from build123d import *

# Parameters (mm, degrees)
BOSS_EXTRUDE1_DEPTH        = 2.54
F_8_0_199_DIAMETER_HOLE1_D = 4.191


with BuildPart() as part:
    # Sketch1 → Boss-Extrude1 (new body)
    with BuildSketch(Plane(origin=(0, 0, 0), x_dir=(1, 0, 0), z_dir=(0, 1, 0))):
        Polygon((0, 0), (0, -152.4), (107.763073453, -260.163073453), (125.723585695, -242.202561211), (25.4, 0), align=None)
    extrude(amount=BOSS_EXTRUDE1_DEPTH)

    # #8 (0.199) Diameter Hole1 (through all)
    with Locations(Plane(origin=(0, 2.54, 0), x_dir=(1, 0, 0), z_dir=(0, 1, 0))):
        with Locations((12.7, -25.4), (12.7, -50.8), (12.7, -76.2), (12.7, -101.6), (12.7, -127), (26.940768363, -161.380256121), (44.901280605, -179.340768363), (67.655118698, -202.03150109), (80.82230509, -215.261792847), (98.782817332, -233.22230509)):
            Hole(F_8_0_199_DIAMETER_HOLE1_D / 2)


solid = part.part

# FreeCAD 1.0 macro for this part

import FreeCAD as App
import Part
import Sketcher

V = App.Vector
Q = App.Units.Quantity


def add_polygon(sketch, points):
    """Adds a closed chain of lines whose ends are joined by coincident constraints."""
    first, n = sketch.GeometryCount, len(points)
    for a, b in zip(points, points[1:] + points[:1]):
        sketch.addGeometry(Part.LineSegment(App.Vector(*a, 0), App.Vector(*b, 0)), False)
    for i in range(n):
        sketch.addConstraint(Sketcher.Constraint("Coincident", first + i, 2, first + (i + 1) % n, 1))

doc = App.newDocument("Part")
params = doc.addObject("Spreadsheet::Sheet", "Params")
for row, (alias, value) in enumerate([
    ("sketch1_width", "1 in"),
    ("sketch1_height", "6 in"),
    ("sketch1_length", "6 in"),
    ("sketch1_length2", "1 in"),
    ("pad1_length", "0.1 in"),
    ("sketch2_diameter", "0.165 in"),
    ("hole_diameter", "0.165 in"),
], start=1):
    params.set(f"A{row}", alias)
    params.set(f"B{row}", "=" + value)
    params.setAlias(f"B{row}", alias)

body = doc.addObject("PartDesign::Body", "Body")

sketch1 = doc.addObject("Sketcher::SketchObject", "Sketch")
body.addObject(sketch1)
sketch1.AttachmentSupport = (doc.XZ_Plane, [""])
sketch1.MapMode = "FlatFace"
add_polygon(sketch1, [(0, 0), (0, 152), (108, 260), (126, 242), (25, 0)])
sketch1.addConstraint(Sketcher.Constraint("Vertical", 0))
sketch1.addConstraint(Sketcher.Constraint("Horizontal", 4))
sketch1.addConstraint(Sketcher.Constraint("Coincident", 4, 2, -1, 1))
sketch1.addConstraint(Sketcher.Constraint("Perpendicular", 1, 2))
sketch1.addConstraint(Sketcher.Constraint("DistanceX", 4, 2, 4, 1, Q("1 in")))
sketch1.addConstraint(Sketcher.Constraint("DistanceY", 0, 1, 0, 2, Q("6 in")))
sketch1.addConstraint(Sketcher.Constraint("Distance", 1, Q("6 in")))
sketch1.addConstraint(Sketcher.Constraint("Distance", 2, Q("1 in")))
sketch1.addConstraint(Sketcher.Constraint("Angle", 1, Q("45 deg")))
sketch1.setExpression("Constraints[9]", "Params.sketch1_width")
sketch1.setExpression("Constraints[10]", "Params.sketch1_height")
sketch1.setExpression("Constraints[11]", "Params.sketch1_length")
sketch1.setExpression("Constraints[12]", "Params.sketch1_length2")
pad1 = doc.addObject("PartDesign::Pad", "Pad")
body.addObject(pad1)
pad1.Profile = sketch1
pad1.setExpression("Length", "Params.pad1_length")
pad1.Reversed = True

sketch2 = doc.addObject("Sketcher::SketchObject", "Sketch001")
body.addObject(sketch2)
sketch2.AttachmentSupport = (doc.XZ_Plane, [""])
sketch2.MapMode = "FlatFace"
sketch2.AttachmentOffset = App.Placement(V(0, 0, -0.1 * 25.4), App.Rotation())
sketch2.addGeometry(Part.Circle(V(12.7, 25.4, 0), V(0, 0, 1), 2.1), False)
sketch2.addGeometry(Part.Circle(V(12.7, 50.8, 0), V(0, 0, 1), 2.1), False)
sketch2.addGeometry(Part.Circle(V(12.7, 76.2, 0), V(0, 0, 1), 2.1), False)
sketch2.addGeometry(Part.Circle(V(12.7, 101.6, 0), V(0, 0, 1), 2.1), False)
sketch2.addGeometry(Part.Circle(V(12.7, 127, 0), V(0, 0, 1), 2.1), False)
sketch2.addGeometry(Part.Circle(V(26.9, 161.4, 0), V(0, 0, 1), 2.1), False)
sketch2.addGeometry(Part.Circle(V(44.9, 179.3, 0), V(0, 0, 1), 2.1), False)
sketch2.addGeometry(Part.Circle(V(67.7, 202, 0), V(0, 0, 1), 2.1), False)
sketch2.addGeometry(Part.Circle(V(80.8, 215.3, 0), V(0, 0, 1), 2.1), False)
sketch2.addGeometry(Part.Circle(V(98.8, 233.2, 0), V(0, 0, 1), 2.1), False)
sketch2.addConstraint(Sketcher.Constraint("Equal", 0, 1))
sketch2.addConstraint(Sketcher.Constraint("Equal", 1, 2))
sketch2.addConstraint(Sketcher.Constraint("Equal", 2, 3))
sketch2.addConstraint(Sketcher.Constraint("Equal", 3, 4))
sketch2.addConstraint(Sketcher.Constraint("Equal", 4, 5))
sketch2.addConstraint(Sketcher.Constraint("Equal", 5, 6))
sketch2.addConstraint(Sketcher.Constraint("Equal", 6, 7))
sketch2.addConstraint(Sketcher.Constraint("Equal", 7, 8))
sketch2.addConstraint(Sketcher.Constraint("Equal", 8, 9))
sketch2.addConstraint(Sketcher.Constraint("Vertical", 0, 3, 1, 3))
sketch2.addConstraint(Sketcher.Constraint("Vertical", 1, 3, 2, 3))
sketch2.addConstraint(Sketcher.Constraint("Vertical", 2, 3, 3, 3))
sketch2.addConstraint(Sketcher.Constraint("Vertical", 3, 3, 4, 3))
sketch2.addConstraint(Sketcher.Constraint("Diameter", 0, Q("0.165 in")))
sketch2.addConstraint(Sketcher.Constraint("DistanceY", -1, 1, 0, 3, Q("1 in")))
sketch2.addConstraint(Sketcher.Constraint("DistanceY", -1, 1, 1, 3, Q("2 in")))
sketch2.addConstraint(Sketcher.Constraint("DistanceY", -1, 1, 2, 3, Q("3 in")))
sketch2.addConstraint(Sketcher.Constraint("DistanceY", -1, 1, 3, 3, Q("4 in")))
sketch2.addConstraint(Sketcher.Constraint("DistanceY", -1, 1, 4, 3, Q("5 in")))
sketch2.addConstraint(Sketcher.Constraint("DistanceX", -1, 1, 0, 3, Q("0.5 in")))
sketch2.addConstraint(Sketcher.Constraint("DistanceX", 7, 3, 9, 3, Q("1.2254999 in")))
sketch2.addConstraint(Sketcher.Constraint("DistanceY", -1, 1, 7, 3, 202.031501))
sketch2.addConstraint(Sketcher.Constraint("DistanceX", -1, 1, 5, 3, 26.940768))
sketch2.addConstraint(Sketcher.Constraint("DistanceX", -1, 1, 6, 3, 44.901281))
sketch2.addConstraint(Sketcher.Constraint("DistanceY", -1, 1, 6, 3, 179.340768))
sketch2.addConstraint(Sketcher.Constraint("DistanceX", -1, 1, 7, 3, 67.655119))
sketch2.addConstraint(Sketcher.Constraint("DistanceY", 7, 3, 8, 3, 13.230292))
sketch2.addConstraint(Sketcher.Constraint("DistanceY", 5, 3, 9, 3, 71.842049))
sketch2.addConstraint(Sketcher.Constraint("DistanceY", -1, 1, 5, 3, 161.380256))
sketch2.addConstraint(Sketcher.Constraint("DistanceX", -1, 1, 8, 3, 80.822305))
sketch2.setExpression("Constraints[13]", "Params.sketch2_diameter")
doc.recompute()
hole = doc.addObject("PartDesign::Hole", "Hole")
body.addObject(hole)
hole.Profile = sketch2
hole.ThreadType = "None"
hole.setExpression("Diameter", "Params.hole_diameter")
hole.DepthType = "ThroughAll"
hole.Reversed = True

doc.recompute()
